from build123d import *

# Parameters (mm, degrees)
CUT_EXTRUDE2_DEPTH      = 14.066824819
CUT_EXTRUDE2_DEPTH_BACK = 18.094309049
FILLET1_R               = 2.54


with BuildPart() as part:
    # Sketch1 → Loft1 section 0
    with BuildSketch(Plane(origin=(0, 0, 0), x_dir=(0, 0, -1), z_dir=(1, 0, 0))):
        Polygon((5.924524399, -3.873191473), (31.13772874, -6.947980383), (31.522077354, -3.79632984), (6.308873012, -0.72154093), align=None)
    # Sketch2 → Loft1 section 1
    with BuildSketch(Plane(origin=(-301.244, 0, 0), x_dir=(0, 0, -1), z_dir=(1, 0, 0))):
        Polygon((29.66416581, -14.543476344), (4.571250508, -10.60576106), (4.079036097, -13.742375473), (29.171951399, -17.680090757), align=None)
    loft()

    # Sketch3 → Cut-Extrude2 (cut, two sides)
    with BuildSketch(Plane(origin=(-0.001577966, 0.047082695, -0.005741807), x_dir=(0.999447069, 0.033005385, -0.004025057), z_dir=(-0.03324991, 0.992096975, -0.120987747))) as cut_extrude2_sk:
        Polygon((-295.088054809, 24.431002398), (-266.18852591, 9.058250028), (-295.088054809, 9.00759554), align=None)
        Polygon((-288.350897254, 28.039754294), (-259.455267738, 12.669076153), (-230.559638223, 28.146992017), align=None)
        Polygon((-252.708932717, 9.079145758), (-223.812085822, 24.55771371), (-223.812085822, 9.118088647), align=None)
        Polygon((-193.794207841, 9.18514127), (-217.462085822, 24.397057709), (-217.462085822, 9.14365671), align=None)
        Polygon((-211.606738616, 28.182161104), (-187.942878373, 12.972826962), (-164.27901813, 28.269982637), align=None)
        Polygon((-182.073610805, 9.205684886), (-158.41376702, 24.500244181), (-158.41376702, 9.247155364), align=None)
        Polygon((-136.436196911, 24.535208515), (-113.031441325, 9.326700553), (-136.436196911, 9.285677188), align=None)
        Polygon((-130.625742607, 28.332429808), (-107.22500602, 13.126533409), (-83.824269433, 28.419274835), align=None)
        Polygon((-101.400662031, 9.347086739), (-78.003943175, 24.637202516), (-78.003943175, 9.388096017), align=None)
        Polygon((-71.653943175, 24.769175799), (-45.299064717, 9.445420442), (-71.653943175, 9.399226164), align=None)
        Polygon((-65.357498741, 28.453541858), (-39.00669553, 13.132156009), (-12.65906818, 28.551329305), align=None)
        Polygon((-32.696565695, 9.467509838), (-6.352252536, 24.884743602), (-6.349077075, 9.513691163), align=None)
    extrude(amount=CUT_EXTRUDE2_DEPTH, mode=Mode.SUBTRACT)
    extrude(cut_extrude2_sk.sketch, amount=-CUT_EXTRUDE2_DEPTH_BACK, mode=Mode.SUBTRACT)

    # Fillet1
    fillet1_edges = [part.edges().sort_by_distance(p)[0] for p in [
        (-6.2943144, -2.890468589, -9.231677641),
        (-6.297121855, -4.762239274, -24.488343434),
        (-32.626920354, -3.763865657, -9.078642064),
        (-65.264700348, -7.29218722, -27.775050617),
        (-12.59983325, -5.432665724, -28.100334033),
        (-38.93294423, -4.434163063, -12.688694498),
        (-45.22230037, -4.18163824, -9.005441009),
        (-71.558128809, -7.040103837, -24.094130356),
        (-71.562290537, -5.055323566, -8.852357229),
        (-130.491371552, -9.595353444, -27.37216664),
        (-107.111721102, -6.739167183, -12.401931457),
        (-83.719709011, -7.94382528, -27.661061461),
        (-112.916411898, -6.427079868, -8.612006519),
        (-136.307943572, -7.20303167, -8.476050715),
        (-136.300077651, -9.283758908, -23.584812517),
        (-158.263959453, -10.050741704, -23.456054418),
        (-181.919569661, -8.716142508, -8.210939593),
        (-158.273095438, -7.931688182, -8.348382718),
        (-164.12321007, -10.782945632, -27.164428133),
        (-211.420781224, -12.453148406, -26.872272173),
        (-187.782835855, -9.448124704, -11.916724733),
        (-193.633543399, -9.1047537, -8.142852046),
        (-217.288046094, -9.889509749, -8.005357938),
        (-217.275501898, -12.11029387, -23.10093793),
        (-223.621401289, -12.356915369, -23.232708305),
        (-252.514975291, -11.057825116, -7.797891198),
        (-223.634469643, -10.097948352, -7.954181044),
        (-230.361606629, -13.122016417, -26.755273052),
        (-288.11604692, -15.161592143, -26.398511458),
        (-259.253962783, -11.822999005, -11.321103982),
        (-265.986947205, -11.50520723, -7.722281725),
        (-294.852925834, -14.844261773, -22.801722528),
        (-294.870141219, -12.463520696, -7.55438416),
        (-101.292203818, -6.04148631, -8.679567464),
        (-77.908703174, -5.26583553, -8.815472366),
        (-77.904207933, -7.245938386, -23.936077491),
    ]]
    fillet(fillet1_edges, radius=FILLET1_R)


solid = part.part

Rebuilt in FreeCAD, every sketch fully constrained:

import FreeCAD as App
import Part
import Sketcher
from FreeCAD import Vector
Q = App.Units.Quantity


def edges_at(feature, points):
    """Names of the edges that pass closest to the given points."""
    edges = feature.Shape.Edges
    near = lambda p: min(range(len(edges)), key=lambda i: edges[i].distToShape(Part.Vertex(*p))[0])
    return sorted({f"Edge{near(p) + 1}" for p in points})

doc = App.newDocument("Part")
body = doc.addObject("PartDesign::Body", "Body")

sketch1 = body.newObject("Sketcher::SketchObject", "Sketch")
sketch1.AttachmentSupport = (doc.getObject("YZ_Plane"), [""])
sketch1.MapMode = "FlatFace"
sketch1.addGeometry(Part.LineSegment(Vector(-3.873191, -5.924524, 0), Vector(-6.94798, -31.137729, 0)), False)
sketch1.addGeometry(Part.LineSegment(Vector(-6.94798, -31.137729, 0), Vector(-3.79633, -31.522077, 0)), False)
sketch1.addGeometry(Part.LineSegment(Vector(-3.79633, -31.522077, 0), Vector(-0.721541, -6.308873, 0)), False)
sketch1.addGeometry(Part.LineSegment(Vector(-0.721541, -6.308873, 0), Vector(-3.873191, -5.924524, 0)), False)
sketch1.addConstraint(Sketcher.Constraint("Coincident", 0, 2, 1, 1))
sketch1.addConstraint(Sketcher.Constraint("Coincident", 1, 2, 2, 1))
sketch1.addConstraint(Sketcher.Constraint("Coincident", 2, 2, 3, 1))
sketch1.addConstraint(Sketcher.Constraint("Coincident", 3, 2, 0, 1))
sketch1.addConstraint(Sketcher.Constraint("Distance", 0, Q("1 in")))
sketch1.addConstraint(Sketcher.Constraint("Distance", 2, Q("1 in")))
sketch1.addConstraint(Sketcher.Constraint("Distance", 1, Q("0.125 in")))
sketch1.addConstraint(Sketcher.Constraint("Distance", 3, Q("0.125 in")))
sketch1.addConstraint(Sketcher.Constraint("DistanceX", 0, 2, -1, 1, Q("6.94798 mm")))
sketch1.addConstraint(Sketcher.Constraint("DistanceY", 0, 2, -1, 1, Q("31.137729 mm")))
sketch1.addConstraint(Sketcher.Constraint("DistanceX", 1, 2, -1, 1, Q("3.79633 mm")))
sketch1.addConstraint(Sketcher.Constraint("DistanceX", 2, 2, -1, 1, Q("0.721541 mm")))

sketch2 = body.newObject("Sketcher::SketchObject", "Sketch001")
sketch2.AttachmentSupport = (doc.getObject("YZ_Plane"), [""])
sketch2.MapMode = "FlatFace"
sketch2.AttachmentOffset = App.Placement(Vector(0, 0, -11.86 * 25.4), App.Rotation())
sketch2.addGeometry(Part.LineSegment(Vector(-14.5, -29.7, 0), Vector(-10.6, -4.6, 0)), False)
sketch2.addGeometry(Part.LineSegment(Vector(-10.6, -4.6, 0), Vector(-13.7, -4.1, 0)), False)
sketch2.addGeometry(Part.LineSegment(Vector(-13.7, -4.1, 0), Vector(-17.7, -29.2, 0)), False)
sketch2.addGeometry(Part.LineSegment(Vector(-17.7, -29.2, 0), Vector(-14.5, -29.7, 0)), False)
sketch2.addConstraint(Sketcher.Constraint("Coincident", 0, 2, 1, 1))
sketch2.addConstraint(Sketcher.Constraint("Coincident", 1, 2, 2, 1))
sketch2.addConstraint(Sketcher.Constraint("Coincident", 2, 2, 3, 1))
sketch2.addConstraint(Sketcher.Constraint("Coincident", 3, 2, 0, 1))
sketch2.addConstraint(Sketcher.Constraint("Perpendicular", 0, 1))
sketch2.addConstraint(Sketcher.Constraint("Perpendicular", 1, 2))
sketch2.addConstraint(Sketcher.Constraint("Perpendicular", 2, 3))
sketch2.addConstraint(Sketcher.Constraint("Distance", 0, Q("1 in")))
sketch2.addConstraint(Sketcher.Constraint("Distance", 1, Q("0.125 in")))
sketch2.addConstraint(Sketcher.Constraint("DistanceY", 2, 2, 0, 2, Q("24.600701 mm")))
sketch2.addConstraint(Sketcher.Constraint("DistanceX", 0, 2, -1, 1, Q("10.605761 mm")))
sketch2.addConstraint(Sketcher.Constraint("DistanceY", 0, 2, -1, 1, Q("4.571251 mm")))

additiveloft = body.newObject("PartDesign::AdditiveLoft", "AdditiveLoft")
additiveloft.Profile = sketch1
additiveloft.Sections = [sketch2]

sketch3 = body.newObject("Sketcher::SketchObject", "Sketch002")
sketch3.Placement = App.Placement(Vector(-0.001578, 0.047083, -0.005742), App.Rotation(Vector(0.999447069, 0.033005385, -0.004025057), Vector(0, -0.121054682, -0.99264584), Vector(-0.03324991, 0.992096975, -0.120987747), "ZXY"))
sketch3.addGeometry(Part.LineSegment(Vector(-266, 9, 0), Vector(-295, 24, 0)), False)
sketch3.addGeometry(Part.LineSegment(Vector(-295, 24, 0), Vector(-295, 9, 0)), False)
sketch3.addGeometry(Part.LineSegment(Vector(-295, 9, 0), Vector(-266, 9, 0)), False)
sketch3.addGeometry(Part.LineSegment(Vector(-288, 28, 0), Vector(-259, 13, 0)), False)
sketch3.addGeometry(Part.LineSegment(Vector(-259, 13, 0), Vector(-231, 28, 0)), False)
sketch3.addGeometry(Part.LineSegment(Vector(-231, 28, 0), Vector(-288, 28, 0)), False)
sketch3.addGeometry(Part.LineSegment(Vector(-224, 25, 0), Vector(-253, 9, 0)), False)
sketch3.addGeometry(Part.LineSegment(Vector(-253, 9, 0), Vector(-224, 9, 0)), False)
sketch3.addGeometry(Part.LineSegment(Vector(-224, 9, 0), Vector(-224, 25, 0)), False)
sketch3.addGeometry(Part.LineSegment(Vector(-194, 9, 0), Vector(-217, 24, 0)), False)
sketch3.addGeometry(Part.LineSegment(Vector(-217, 24, 0), Vector(-217, 9, 0)), False)
sketch3.addGeometry(Part.LineSegment(Vector(-217, 9, 0), Vector(-194, 9, 0)), False)
sketch3.addGeometry(Part.LineSegment(Vector(-212, 28, 0), Vector(-188, 13, 0)), False)
sketch3.addGeometry(Part.LineSegment(Vector(-188, 13, 0), Vector(-164, 28, 0)), False)
sketch3.addGeometry(Part.LineSegment(Vector(-164, 28, 0), Vector(-212, 28, 0)), False)
sketch3.addGeometry(Part.LineSegment(Vector(-158, 25, 0), Vector(-182, 9, 0)), False)
sketch3.addGeometry(Part.LineSegment(Vector(-182, 9, 0), Vector(-158, 9, 0)), False)
sketch3.addGeometry(Part.LineSegment(Vector(-158, 9, 0), Vector(-158, 25, 0)), False)
sketch3.addGeometry(Part.LineSegment(Vector(-113, 9, 0), Vector(-136, 25, 0)), False)
sketch3.addGeometry(Part.LineSegment(Vector(-136, 25, 0), Vector(-136, 9, 0)), False)
sketch3.addGeometry(Part.LineSegment(Vector(-136, 9, 0), Vector(-113, 9, 0)), False)
sketch3.addGeometry(Part.LineSegment(Vector(-131, 28, 0), Vector(-107, 13, 0)), False)
sketch3.addGeometry(Part.LineSegment(Vector(-107, 13, 0), Vector(-84, 28, 0)), False)
sketch3.addGeometry(Part.LineSegment(Vector(-84, 28, 0), Vector(-131, 28, 0)), False)
sketch3.addGeometry(Part.LineSegment(Vector(-78, 25, 0), Vector(-101, 9, 0)), False)
sketch3.addGeometry(Part.LineSegment(Vector(-101, 9, 0), Vector(-78, 9, 0)), False)
sketch3.addGeometry(Part.LineSegment(Vector(-78, 9, 0), Vector(-78, 25, 0)), False)
sketch3.addGeometry(Part.LineSegment(Vector(-45, 9, 0), Vector(-72, 25, 0)), False)
sketch3.addGeometry(Part.LineSegment(Vector(-72, 25, 0), Vector(-72, 9, 0)), False)
sketch3.addGeometry(Part.LineSegment(Vector(-72, 9, 0), Vector(-45, 9, 0)), False)
sketch3.addGeometry(Part.LineSegment(Vector(-65, 28, 0), Vector(-39, 13, 0)), False)
sketch3.addGeometry(Part.LineSegment(Vector(-39, 13, 0), Vector(-13, 29, 0)), False)
sketch3.addGeometry(Part.LineSegment(Vector(-13, 29, 0), Vector(-65, 28, 0)), False)
sketch3.addGeometry(Part.LineSegment(Vector(-6, 25, 0), Vector(-33, 9, 0)), False)
sketch3.addGeometry(Part.LineSegment(Vector(-33, 9, 0), Vector(-6, 10, 0)), False)
sketch3.addGeometry(Part.LineSegment(Vector(-6, 10, 0), Vector(-6, 25, 0)), False)
sketch3.addConstraint(Sketcher.Constraint("Coincident", 0, 2, 1, 1))
sketch3.addConstraint(Sketcher.Constraint("Coincident", 1, 2, 2, 1))
sketch3.addConstraint(Sketcher.Constraint("Coincident", 2, 2, 0, 1))
sketch3.addConstraint(Sketcher.Constraint("Coincident", 3, 2, 4, 1))
sketch3.addConstraint(Sketcher.Constraint("Coincident", 4, 2, 5, 1))
sketch3.addConstraint(Sketcher.Constraint("Coincident", 5, 2, 3, 1))
sketch3.addConstraint(Sketcher.Constraint("Coincident", 6, 2, 7, 1))
sketch3.addConstraint(Sketcher.Constraint("Coincident", 7, 2, 8, 1))
sketch3.addConstraint(Sketcher.Constraint("Coincident", 8, 2, 6, 1))
sketch3.addConstraint(Sketcher.Constraint("Coincident", 9, 2, 10, 1))
sketch3.addConstraint(Sketcher.Constraint("Coincident", 10, 2, 11, 1))
sketch3.addConstraint(Sketcher.Constraint("Coincident", 11, 2, 9, 1))
sketch3.addConstraint(Sketcher.Constraint("Coincident", 12, 2, 13, 1))
sketch3.addConstraint(Sketcher.Constraint("Coincident", 13, 2, 14, 1))
sketch3.addConstraint(Sketcher.Constraint("Coincident", 14, 2, 12, 1))
sketch3.addConstraint(Sketcher.Constraint("Coincident", 15, 2, 16, 1))
sketch3.addConstraint(Sketcher.Constraint("Coincident", 16, 2, 17, 1))
sketch3.addConstraint(Sketcher.Constraint("Coincident", 17, 2, 15, 1))
sketch3.addConstraint(Sketcher.Constraint("Coincident", 18, 2, 19, 1))
sketch3.addConstraint(Sketcher.Constraint("Coincident", 19, 2, 20, 1))
sketch3.addConstraint(Sketcher.Constraint("Coincident", 20, 2, 18, 1))
sketch3.addConstraint(Sketcher.Constraint("Coincident", 21, 2, 22, 1))
sketch3.addConstraint(Sketcher.Constraint("Coincident", 22, 2, 23, 1))
sketch3.addConstraint(Sketcher.Constraint("Coincident", 23, 2, 21, 1))
sketch3.addConstraint(Sketcher.Constraint("Coincident", 24, 2, 25, 1))
sketch3.addConstraint(Sketcher.Constraint("Coincident", 25, 2, 26, 1))
sketch3.addConstraint(Sketcher.Constraint("Coincident", 26, 2, 24, 1))
sketch3.addConstraint(Sketcher.Constraint("Coincident", 27, 2, 28, 1))
sketch3.addConstraint(Sketcher.Constraint("Coincident", 28, 2, 29, 1))
sketch3.addConstraint(Sketcher.Constraint("Coincident", 29, 2, 27, 1))
sketch3.addConstraint(Sketcher.Constraint("Coincident", 30, 2, 31, 1))
sketch3.addConstraint(Sketcher.Constraint("Coincident", 31, 2, 32, 1))
sketch3.addConstraint(Sketcher.Constraint("Coincident", 32, 2, 30, 1))
sketch3.addConstraint(Sketcher.Constraint("Coincident", 33, 2, 34, 1))
sketch3.addConstraint(Sketcher.Constraint("Coincident", 34, 2, 35, 1))
sketch3.addConstraint(Sketcher.Constraint("Coincident", 35, 2, 33, 1))
sketch3.addConstraint(Sketcher.Constraint("Vertical", 1))
sketch3.addConstraint(Sketcher.Constraint("Vertical", 8))
sketch3.addConstraint(Sketcher.Constraint("Vertical", 10))
sketch3.addConstraint(Sketcher.Constraint("Vertical", 17))
sketch3.addConstraint(Sketcher.Constraint("Vertical", 19))
sketch3.addConstraint(Sketcher.Constraint("Vertical", 26))
sketch3.addConstraint(Sketcher.Constraint("Vertical", 28))
sketch3.addConstraint(Sketcher.Constraint("Parallel", 0, 3))
sketch3.addConstraint(Sketcher.Constraint("Parallel", 4, 6))
sketch3.addConstraint(Sketcher.Constraint("Parallel", 2, 11))
sketch3.addConstraint(Sketcher.Constraint("Parallel", 9, 12))
sketch3.addConstraint(Sketcher.Constraint("Parallel", 5, 14))
sketch3.addConstraint(Sketcher.Constraint("Parallel", 13, 15))
sketch3.addConstraint(Sketcher.Constraint("Parallel", 11, 16))
sketch3.addConstraint(Sketcher.Constraint("Parallel", 16, 20))
sketch3.addConstraint(Sketcher.Constraint("Parallel", 18, 21))
sketch3.addConstraint(Sketcher.Constraint("Parallel", 14, 23))
sketch3.addConstraint(Sketcher.Constraint("Parallel", 22, 24))
sketch3.addConstraint(Sketcher.Constraint("Parallel", 20, 25))
sketch3.addConstraint(Sketcher.Constraint("Parallel", 25, 29))
sketch3.addConstraint(Sketcher.Constraint("Parallel", 27, 30))
sketch3.addConstraint(Sketcher.Constraint("Parallel", 23, 32))
sketch3.addConstraint(Sketcher.Constraint("Parallel", 31, 33))
sketch3.addConstraint(Sketcher.Constraint("Parallel", 29, 34))
sketch3.addConstraint(Sketcher.Constraint("DistanceX", 8, 2, 9, 2, Q("0.25 in")))
sketch3.addConstraint(Sketcher.Constraint("DistanceX", 26, 2, 27, 2, Q("0.25 in")))
sketch3.addConstraint(Sketcher.Constraint("DistanceY", 10, 2, 10, 1, Q("15.253401 mm")))
sketch3.addConstraint(Sketcher.Constraint("DistanceX", 20, 2, 21, 2, Q("0.2285998 in")))
sketch3.addConstraint(Sketcher.Constraint("DistanceX", 31, 2, 35, 2, Q("0.2482998 in")))
sketch3.addConstraint(Sketcher.Constraint("Distance", 14, Q("47.327802 mm")))
sketch3.addConstraint(Sketcher.Constraint("Distance", 30, Q("30.481301 mm")))
sketch3.addConstraint(Sketcher.Constraint("DistanceY", 17, 1, 17, 2, Q("15.253089 mm")))
sketch3.addConstraint(Sketcher.Constraint("DistanceY", 19, 2, 19, 1, Q("15.249531 mm")))
sketch3.addConstraint(Sketcher.Constraint("DistanceY", 28, 2, 28, 1, Q("15.36995 mm")))
sketch3.addConstraint(Sketcher.Constraint("DistanceY", -1, 1, 20, 2, Q("9.326701 mm")))
sketch3.addConstraint(Sketcher.Constraint("DistanceX", 32, 2, -1, 1, Q("65.357499 mm")))
sketch3.addConstraint(Sketcher.Constraint("DistanceX", 4, 2, 14, 2, Q("18.9529 mm")))
sketch3.addConstraint(Sketcher.Constraint("DistanceX", 23, 2, 20, 2, Q("17.594301 mm")))
sketch3.addConstraint(Sketcher.Constraint("DistanceX", 20, 2, 25, 2, Q("35.027498 mm")))
sketch3.addConstraint(Sketcher.Constraint("DistanceY", 20, 2, 26, 2, Q("15.310502 mm")))
sketch3.addConstraint(Sketcher.Constraint("DistanceY", 27, 2, 22, 2, Q("3.650099 mm")))
sketch3.addConstraint(Sketcher.Constraint("DistanceX", 29, 2, 33, 2, Q("12.602499 mm")))
sketch3.addConstraint(Sketcher.Constraint("Distance", 0, Q("32.73384 mm")))
sketch3.addConstraint(Sketcher.Constraint("Distance", 4, Q("32.779922 mm")))
sketch3.addConstraint(Sketcher.Constraint("Distance", 5, Q("57.791359 mm")))
sketch3.addConstraint(Sketcher.Constraint("Distance", 9, Q("28.134869 mm")))
sketch3.addConstraint(Sketcher.Constraint("Distance", 15, Q("28.17289 mm")))
sketch3.addConstraint(Sketcher.Constraint("Distance", 16, Q("23.65988 mm")))
sketch3.addConstraint(Sketcher.Constraint("Distance", 20, Q("23.404792 mm")))
sketch3.addConstraint(Sketcher.Constraint("Distance", 22, Q("27.954649 mm")))
sketch3.addConstraint(Sketcher.Constraint("Distance", 24, Q("27.94985 mm")))
sketch3.addConstraint(Sketcher.Constraint("Distance", 29, Q("26.354919 mm")))
sketch3.addConstraint(Sketcher.Constraint("Distance", 31, Q("30.527829 mm")))
sketch3.addConstraint(Sketcher.Constraint("Distance", 32, Q("52.698521 mm")))
sketch3.addConstraint(Sketcher.Constraint("Distance", 33, Q("30.523989 mm")))
sketch3.addConstraint(Sketcher.Constraint("Distance", 34, Q("26.347529 mm")))
sketch3.addConstraint(Sketcher.Constraint("DistanceY", 1, 2, 1, 1, Q("15.423407 mm")))
sketch3.addConstraint(Sketcher.Constraint("DistanceY", 8, 1, 8, 2, Q("15.439625 mm")))
sketch3.addConstraint(Sketcher.Constraint("DistanceY", -1, 1, 2, 2, Q("9.05825 mm")))
sketch3.addConstraint(Sketcher.Constraint("DistanceX", 4, 2, -1, 1, Q("230.559638 mm")))
sketch3.addConstraint(Sketcher.Constraint("DistanceY", -1, 1, 7, 2, Q("9.118089 mm")))
sketch3.addConstraint(Sketcher.Constraint("DistanceY", -1, 1, 11, 2, Q("9.185141 mm")))
sketch3.addConstraint(Sketcher.Constraint("DistanceY", -1, 1, 14, 2, Q("28.182161 mm")))
sketch3.addConstraint(Sketcher.Constraint("DistanceX", 15, 2, -1, 1, Q("182.073611 mm")))
sketch3.addConstraint(Sketcher.Constraint("DistanceY", -1, 1, 23, 2, Q("28.33243 mm")))
sketch3.addConstraint(Sketcher.Constraint("DistanceY", -1, 1, 31, 2, Q("28.551329 mm")))
sketch3.addConstraint(Sketcher.Constraint("DistanceY", -1, 1, 33, 2, Q("9.46751 mm")))
sketch3.addConstraint(Sketcher.Constraint("DistanceX", 2, 2, 3, 2, Q("6.733258 mm")))
sketch3.addConstraint(Sketcher.Constraint("DistanceY", 1, 2, 3, 2, Q("3.661481 mm")))
sketch3.addConstraint(Sketcher.Constraint("DistanceY", 6, 2, 3, 2, Q("3.58993 mm")))
sketch3.addConstraint(Sketcher.Constraint("DistanceX", 3, 2, 7, 2, Q("35.643182 mm")))
sketch3.addConstraint(Sketcher.Constraint("DistanceY", 10, 2, 15, 2, Q("0.062028 mm")))
pocket1 = body.newObject("PartDesign::Pocket", "Pocket")
pocket1.Profile = sketch3
pocket1.Type = "ThroughAll"
pocket1.Midplane = True
doc.recompute()

fillet = body.newObject("PartDesign::Fillet", "Fillet")
fillet.Base = (pocket1, edges_at(pocket1, [
    (-6.294, -2.89, -9.232),
    (-6.297, -4.762, -24.488),
    (-32.627, -3.764, -9.079),
    (-65.265, -7.292, -27.775),
    (-12.6, -5.433, -28.1),
    (-38.933, -4.434, -12.689),
    (-45.222, -4.182, -9.005),
    (-71.558, -7.04, -24.094),
    (-71.562, -5.055, -8.852),
    (-130.491, -9.595, -27.372),
    (-107.112, -6.739, -12.402),
    (-83.72, -7.944, -27.661),
    (-112.916, -6.427, -8.612),
    (-136.308, -7.203, -8.476),
    (-136.3, -9.284, -23.585),
    (-158.264, -10.051, -23.456),
    (-181.92, -8.716, -8.211),
    (-158.273, -7.932, -8.348),
    (-164.123, -10.783, -27.164),
    (-211.421, -12.453, -26.872),
    (-187.783, -9.448, -11.917),
    (-193.634, -9.105, -8.143),
    (-217.288, -9.89, -8.005),
    (-217.276, -12.11, -23.101),
    (-223.621, -12.357, -23.233),
    (-252.515, -11.058, -7.798),
    (-223.634, -10.098, -7.954),
    (-230.362, -13.122, -26.755),
    (-288.116, -15.162, -26.399),
    (-259.254, -11.823, -11.321),
    (-265.987, -11.505, -7.722),
    (-294.853, -14.844, -22.802),
    (-294.87, -12.464, -7.554),
    (-101.292, -6.041, -8.68),
    (-77.909, -5.266, -8.815),
    (-77.904, -7.246, -23.936),
]))
fillet.Radius = Q("0.1 in")

doc.recompute()
